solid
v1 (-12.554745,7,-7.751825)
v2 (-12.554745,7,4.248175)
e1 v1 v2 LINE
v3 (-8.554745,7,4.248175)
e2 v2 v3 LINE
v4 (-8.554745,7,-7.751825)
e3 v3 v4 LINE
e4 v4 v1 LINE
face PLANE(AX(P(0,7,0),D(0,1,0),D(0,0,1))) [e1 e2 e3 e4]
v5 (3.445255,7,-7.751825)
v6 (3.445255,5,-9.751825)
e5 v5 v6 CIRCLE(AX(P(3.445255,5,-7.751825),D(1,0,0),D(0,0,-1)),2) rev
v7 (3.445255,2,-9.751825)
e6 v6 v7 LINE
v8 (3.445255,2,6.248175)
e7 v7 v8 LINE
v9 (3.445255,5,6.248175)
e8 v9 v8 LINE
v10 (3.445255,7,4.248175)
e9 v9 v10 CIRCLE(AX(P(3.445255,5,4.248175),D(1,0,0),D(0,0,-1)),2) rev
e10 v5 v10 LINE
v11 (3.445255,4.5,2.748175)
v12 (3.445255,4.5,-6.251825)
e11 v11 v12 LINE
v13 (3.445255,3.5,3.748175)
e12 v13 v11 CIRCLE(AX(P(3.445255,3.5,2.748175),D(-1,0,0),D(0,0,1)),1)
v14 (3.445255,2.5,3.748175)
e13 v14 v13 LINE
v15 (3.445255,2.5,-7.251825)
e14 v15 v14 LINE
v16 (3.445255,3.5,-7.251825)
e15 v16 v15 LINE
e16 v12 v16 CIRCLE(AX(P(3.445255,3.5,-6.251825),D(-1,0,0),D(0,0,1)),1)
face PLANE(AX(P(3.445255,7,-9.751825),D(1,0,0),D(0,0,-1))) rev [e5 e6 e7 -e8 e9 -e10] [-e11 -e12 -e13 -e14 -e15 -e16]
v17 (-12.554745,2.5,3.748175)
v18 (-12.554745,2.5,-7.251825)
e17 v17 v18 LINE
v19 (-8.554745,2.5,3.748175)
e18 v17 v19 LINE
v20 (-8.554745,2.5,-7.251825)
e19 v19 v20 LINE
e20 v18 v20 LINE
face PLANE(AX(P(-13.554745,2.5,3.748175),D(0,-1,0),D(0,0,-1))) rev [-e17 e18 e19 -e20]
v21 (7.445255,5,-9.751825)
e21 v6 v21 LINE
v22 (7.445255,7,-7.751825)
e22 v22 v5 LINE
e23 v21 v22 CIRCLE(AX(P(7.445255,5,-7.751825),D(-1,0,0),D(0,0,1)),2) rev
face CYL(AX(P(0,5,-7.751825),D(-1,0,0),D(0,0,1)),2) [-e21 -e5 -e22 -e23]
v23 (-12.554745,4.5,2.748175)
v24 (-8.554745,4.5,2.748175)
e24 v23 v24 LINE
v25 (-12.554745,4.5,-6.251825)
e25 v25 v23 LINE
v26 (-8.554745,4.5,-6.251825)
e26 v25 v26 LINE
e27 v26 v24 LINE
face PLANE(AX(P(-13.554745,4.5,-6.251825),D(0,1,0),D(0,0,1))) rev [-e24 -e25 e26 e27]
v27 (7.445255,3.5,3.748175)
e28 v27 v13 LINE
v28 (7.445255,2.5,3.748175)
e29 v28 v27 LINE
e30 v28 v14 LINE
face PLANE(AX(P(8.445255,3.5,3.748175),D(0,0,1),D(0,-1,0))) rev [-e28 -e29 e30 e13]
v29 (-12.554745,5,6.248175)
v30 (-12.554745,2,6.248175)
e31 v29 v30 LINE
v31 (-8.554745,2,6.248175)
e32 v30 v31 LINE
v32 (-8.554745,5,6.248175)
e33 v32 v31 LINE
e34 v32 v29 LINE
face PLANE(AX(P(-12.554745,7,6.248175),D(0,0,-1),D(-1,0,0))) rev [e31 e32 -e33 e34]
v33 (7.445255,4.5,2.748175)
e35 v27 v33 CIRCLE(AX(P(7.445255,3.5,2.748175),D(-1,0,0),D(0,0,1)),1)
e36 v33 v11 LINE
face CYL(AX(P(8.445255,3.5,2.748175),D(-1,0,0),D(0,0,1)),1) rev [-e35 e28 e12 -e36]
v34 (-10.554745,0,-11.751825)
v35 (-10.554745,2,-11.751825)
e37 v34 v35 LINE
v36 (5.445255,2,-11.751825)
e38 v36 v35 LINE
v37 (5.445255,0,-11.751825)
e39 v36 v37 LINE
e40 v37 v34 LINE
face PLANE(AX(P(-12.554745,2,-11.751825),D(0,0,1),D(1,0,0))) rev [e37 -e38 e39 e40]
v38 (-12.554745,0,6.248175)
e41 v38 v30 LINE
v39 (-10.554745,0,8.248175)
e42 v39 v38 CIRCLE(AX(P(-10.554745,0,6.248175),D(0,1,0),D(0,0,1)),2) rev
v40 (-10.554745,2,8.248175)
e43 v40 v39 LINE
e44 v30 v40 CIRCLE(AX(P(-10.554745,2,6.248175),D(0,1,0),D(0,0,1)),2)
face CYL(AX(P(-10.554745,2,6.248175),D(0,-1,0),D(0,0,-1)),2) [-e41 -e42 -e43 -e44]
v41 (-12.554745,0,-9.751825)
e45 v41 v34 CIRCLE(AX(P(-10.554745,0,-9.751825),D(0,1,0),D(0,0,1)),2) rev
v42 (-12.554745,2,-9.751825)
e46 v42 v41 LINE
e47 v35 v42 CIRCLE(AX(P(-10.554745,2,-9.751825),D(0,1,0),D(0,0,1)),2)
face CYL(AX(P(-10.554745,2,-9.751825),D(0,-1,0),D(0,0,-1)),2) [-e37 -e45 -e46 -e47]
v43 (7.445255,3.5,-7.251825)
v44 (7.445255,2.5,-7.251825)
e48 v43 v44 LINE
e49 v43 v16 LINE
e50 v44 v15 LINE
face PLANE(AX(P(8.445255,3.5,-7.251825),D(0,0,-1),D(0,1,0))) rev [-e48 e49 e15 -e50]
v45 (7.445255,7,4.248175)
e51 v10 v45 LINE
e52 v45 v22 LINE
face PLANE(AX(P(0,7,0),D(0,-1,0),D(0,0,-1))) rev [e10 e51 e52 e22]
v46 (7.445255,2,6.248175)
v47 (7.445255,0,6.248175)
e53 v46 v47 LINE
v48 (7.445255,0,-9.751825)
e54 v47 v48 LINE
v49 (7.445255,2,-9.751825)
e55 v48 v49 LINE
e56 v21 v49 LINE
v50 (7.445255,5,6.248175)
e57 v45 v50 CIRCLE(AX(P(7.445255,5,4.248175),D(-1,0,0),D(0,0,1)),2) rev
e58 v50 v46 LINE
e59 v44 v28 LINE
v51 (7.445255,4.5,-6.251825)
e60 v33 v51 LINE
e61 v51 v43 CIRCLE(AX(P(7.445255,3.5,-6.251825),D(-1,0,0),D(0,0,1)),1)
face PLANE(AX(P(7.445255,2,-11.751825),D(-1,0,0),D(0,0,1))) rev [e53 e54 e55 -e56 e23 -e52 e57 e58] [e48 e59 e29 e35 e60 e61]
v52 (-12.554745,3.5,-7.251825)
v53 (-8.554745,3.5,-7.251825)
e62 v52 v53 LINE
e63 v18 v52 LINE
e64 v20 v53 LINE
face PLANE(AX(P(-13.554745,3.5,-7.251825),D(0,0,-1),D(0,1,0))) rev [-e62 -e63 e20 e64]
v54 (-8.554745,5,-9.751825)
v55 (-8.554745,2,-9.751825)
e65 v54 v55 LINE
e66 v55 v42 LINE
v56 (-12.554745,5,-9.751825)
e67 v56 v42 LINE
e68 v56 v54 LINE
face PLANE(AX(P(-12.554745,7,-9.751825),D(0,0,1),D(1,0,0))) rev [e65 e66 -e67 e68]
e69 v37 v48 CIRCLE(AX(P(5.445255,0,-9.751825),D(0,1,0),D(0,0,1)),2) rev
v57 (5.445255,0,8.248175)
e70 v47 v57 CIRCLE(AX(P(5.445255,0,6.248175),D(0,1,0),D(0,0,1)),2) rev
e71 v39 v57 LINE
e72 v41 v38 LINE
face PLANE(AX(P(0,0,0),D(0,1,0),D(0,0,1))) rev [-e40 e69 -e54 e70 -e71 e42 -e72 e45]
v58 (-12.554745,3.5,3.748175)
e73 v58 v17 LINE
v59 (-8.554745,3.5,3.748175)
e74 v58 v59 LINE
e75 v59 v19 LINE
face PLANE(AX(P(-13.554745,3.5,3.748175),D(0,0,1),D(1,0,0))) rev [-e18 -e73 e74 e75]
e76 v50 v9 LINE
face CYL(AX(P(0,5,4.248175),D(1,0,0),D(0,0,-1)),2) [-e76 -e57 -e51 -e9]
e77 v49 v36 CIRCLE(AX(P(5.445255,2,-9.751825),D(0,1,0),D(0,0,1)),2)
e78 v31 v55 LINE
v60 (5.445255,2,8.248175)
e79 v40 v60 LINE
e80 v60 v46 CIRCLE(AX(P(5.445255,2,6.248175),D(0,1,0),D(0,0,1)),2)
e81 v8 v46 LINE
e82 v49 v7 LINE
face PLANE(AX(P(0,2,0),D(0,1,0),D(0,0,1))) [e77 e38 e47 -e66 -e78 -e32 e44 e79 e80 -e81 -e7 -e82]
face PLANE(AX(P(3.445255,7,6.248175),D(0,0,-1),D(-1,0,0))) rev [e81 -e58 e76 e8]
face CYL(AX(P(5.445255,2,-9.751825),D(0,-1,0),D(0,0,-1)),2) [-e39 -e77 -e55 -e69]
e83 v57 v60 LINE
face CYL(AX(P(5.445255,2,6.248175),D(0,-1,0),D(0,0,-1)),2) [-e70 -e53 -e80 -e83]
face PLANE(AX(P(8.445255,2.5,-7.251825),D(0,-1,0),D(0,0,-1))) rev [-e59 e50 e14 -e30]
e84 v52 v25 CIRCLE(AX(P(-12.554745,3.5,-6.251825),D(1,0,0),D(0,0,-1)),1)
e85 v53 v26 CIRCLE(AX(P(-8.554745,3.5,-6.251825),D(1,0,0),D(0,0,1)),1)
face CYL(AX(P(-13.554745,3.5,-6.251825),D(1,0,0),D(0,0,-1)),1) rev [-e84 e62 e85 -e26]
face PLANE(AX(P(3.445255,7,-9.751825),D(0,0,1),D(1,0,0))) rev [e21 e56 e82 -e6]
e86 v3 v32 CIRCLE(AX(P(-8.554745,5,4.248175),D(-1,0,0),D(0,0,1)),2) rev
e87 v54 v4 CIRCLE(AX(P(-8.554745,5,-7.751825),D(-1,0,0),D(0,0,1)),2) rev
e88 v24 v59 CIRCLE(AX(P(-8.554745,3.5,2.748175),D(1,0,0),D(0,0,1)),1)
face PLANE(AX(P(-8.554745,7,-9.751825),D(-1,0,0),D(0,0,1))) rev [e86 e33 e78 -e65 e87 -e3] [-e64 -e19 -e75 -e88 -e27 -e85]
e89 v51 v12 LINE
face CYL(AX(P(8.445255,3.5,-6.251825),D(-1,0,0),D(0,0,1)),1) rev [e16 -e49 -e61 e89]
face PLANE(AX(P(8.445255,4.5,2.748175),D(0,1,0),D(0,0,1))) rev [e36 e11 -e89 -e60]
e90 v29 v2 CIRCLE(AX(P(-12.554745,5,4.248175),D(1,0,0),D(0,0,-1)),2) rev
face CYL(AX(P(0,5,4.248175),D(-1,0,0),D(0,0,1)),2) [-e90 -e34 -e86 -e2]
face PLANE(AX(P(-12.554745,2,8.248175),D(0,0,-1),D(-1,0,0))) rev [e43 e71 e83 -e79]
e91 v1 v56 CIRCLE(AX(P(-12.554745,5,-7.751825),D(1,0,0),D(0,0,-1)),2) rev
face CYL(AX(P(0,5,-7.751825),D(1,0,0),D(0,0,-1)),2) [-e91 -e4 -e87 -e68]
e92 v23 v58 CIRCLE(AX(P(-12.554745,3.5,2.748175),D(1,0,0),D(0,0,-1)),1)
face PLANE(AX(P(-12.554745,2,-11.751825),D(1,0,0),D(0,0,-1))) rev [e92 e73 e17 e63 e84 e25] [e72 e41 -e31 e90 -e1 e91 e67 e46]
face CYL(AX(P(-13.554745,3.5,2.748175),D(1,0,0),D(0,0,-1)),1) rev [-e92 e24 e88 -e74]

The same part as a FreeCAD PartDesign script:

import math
import FreeCAD as App
import Part
import Sketcher


def edges_at(feature, points):
    """Names of the edges that pass closest to the given points."""
    edges = feature.Shape.Edges
    near = lambda p: min(range(len(edges)), key=lambda i: edges[i].distToShape(Part.Vertex(*p))[0])
    return sorted({f"Edge{near(p) + 1}" for p in points})


def add_polygon(sketch, points):
    """Adds a closed chain of lines whose ends are joined by coincident constraints."""
    first, n = sketch.GeometryCount, len(points)
    for a, b in zip(points, points[1:] + points[:1]):
        sketch.addGeometry(Part.LineSegment(App.Vector(*a, 0), App.Vector(*b, 0)), False)
    for i in range(n):
        sketch.addConstraint(Sketcher.Constraint("Coincident", first + i, 2, first + (i + 1) % n, 1))

doc = App.newDocument("Part")
body = doc.addObject("PartDesign::Body", "Body")

# Sketch on XZ plane
sketch1 = doc.addObject("Sketcher::SketchObject", "Sketch")
body.addObject(sketch1)
sketch1.AttachmentSupport = (doc.XZ_Plane, [""])
sketch1.MapMode = "FlatFace"
add_polygon(sketch1, [(-12.554745, -11.751825), (-12.554745, 8.248175), (7.445255, 8.248175), (7.445255, -11.751825)])  # lines 0-3
sketch1.addConstraint([
    Sketcher.Constraint("Vertical", 0),
    Sketcher.Constraint("Horizontal", 1),
    Sketcher.Constraint("Vertical", 2),
    Sketcher.Constraint("Horizontal", 3),
    Sketcher.Constraint("Equal", 3, 0),
    Sketcher.Constraint("DistanceX", 1, 1, 1, 2, 20.0),
    Sketcher.Constraint("DistanceX", 0, 2, -1, 1, 12.554745),
    Sketcher.Constraint("DistanceY", -1, 1, 0, 2, 8.248175),
])
pad1 = doc.addObject("PartDesign::Pad", "Pad")
body.addObject(pad1)
pad1.Profile = sketch1
pad1.Length = 2
pad1.Reversed = True

# Sketch on XZ plane
sketch2 = doc.addObject("Sketcher::SketchObject", "Sketch001")
body.addObject(sketch2)
sketch2.AttachmentSupport = (doc.XZ_Plane, [""])
sketch2.MapMode = "FlatFace"
sketch2.AttachmentOffset = App.Placement(App.Vector(0, 0, -2), App.Rotation())
add_polygon(sketch2, [(-12.554745, -9.751825), (-12.554745, 6.248175), (-8.554745, 6.248175), (-8.554745, -9.751825)])  # lines 0-3
add_polygon(sketch2, [(3.445255, -9.751825), (3.445255, 6.248175), (7.445255, 6.248175), (7.445255, -9.751825)])  # lines 4-7
sketch2.addConstraint([
    Sketcher.Constraint("Vertical", 0),
    Sketcher.Constraint("Horizontal", 1),
    Sketcher.Constraint("Vertical", 2),
    Sketcher.Constraint("Horizontal", 3),
    Sketcher.Constraint("Vertical", 4),
    Sketcher.Constraint("Horizontal", 5),
    Sketcher.Constraint("Vertical", 6),
    Sketcher.Constraint("Horizontal", 7),
    Sketcher.Constraint("Horizontal", 1, 2, 4, 2),
    Sketcher.Constraint("Horizontal", 3, 2, 6, 2),
    Sketcher.Constraint("Equal", 3, 5),
    Sketcher.Constraint("DistanceX", 1, 1, 1, 2, 4.0),
    Sketcher.Constraint("DistanceY", 0, 1, 0, 2, 16.0),
    Sketcher.Constraint("DistanceX", 1, 2, 4, 2, 12.0),
    Sketcher.Constraint("DistanceX", 0, 2, -1, 1, 12.554745),
    Sketcher.Constraint("DistanceY", -1, 1, 0, 2, 6.248175),
])
pad2 = doc.addObject("PartDesign::Pad", "Pad001")
body.addObject(pad2)
pad2.Profile = sketch2
pad2.Length = 5
pad2.Reversed = True

# Sketch on YZ plane
sketch3 = doc.addObject("Sketcher::SketchObject", "Sketch002")
body.addObject(sketch3)
sketch3.AttachmentSupport = (doc.YZ_Plane, [""])
sketch3.MapMode = "FlatFace"
sketch3.AttachmentOffset = App.Placement(App.Vector(0, 0, -8.554745), App.Rotation())
sketch3.addGeometry([
    Part.LineSegment(App.Vector(4.5, -6.251825, 0), App.Vector(4.5, 2.748175, 0)),  # 0
    Part.ArcOfCircle(Part.Circle(App.Vector(3.5, 2.748175, 0), App.Vector(0, 0, 1), 1), math.radians(0), math.radians(90)),  # 1
    Part.LineSegment(App.Vector(3.5, 3.748175, 0), App.Vector(2.5, 3.748175, 0)),  # 2
    Part.LineSegment(App.Vector(2.5, 3.748175, 0), App.Vector(2.5, -7.251825, 0)),  # 3
    Part.LineSegment(App.Vector(2.5, -7.251825, 0), App.Vector(3.5, -7.251825, 0)),  # 4
    Part.ArcOfCircle(Part.Circle(App.Vector(3.5, -6.251825, 0), App.Vector(0, 0, 1), 1), math.radians(-90), math.radians(0)),  # 5
], False)
sketch3.addConstraint([
    Sketcher.Constraint("Tangent", 0, 2, 1, 1),
    Sketcher.Constraint("Tangent", 1, 2, 2, 1),
    Sketcher.Constraint("Coincident", 2, 2, 3, 1),
    Sketcher.Constraint("Coincident", 3, 2, 4, 1),
    Sketcher.Constraint("Tangent", 4, 2, 5, 1),
    Sketcher.Constraint("Tangent", 5, 2, 0, 1),
    Sketcher.Constraint("Vertical", 0),
    Sketcher.Constraint("Horizontal", 2),
    Sketcher.Constraint("Vertical", 3),
    Sketcher.Constraint("Horizontal", 4),
    Sketcher.Constraint("Equal", 1, 5),
    Sketcher.Constraint("Radius", 1, 1.0),
    Sketcher.Constraint("DistanceX", 2, 2, 2, 1, 1.0),
    Sketcher.Constraint("DistanceY", 0, 1, 0, 2, 9.0),
    Sketcher.Constraint("DistanceX", -1, 1, 1, 3, 3.5),
    Sketcher.Constraint("DistanceY", -1, 1, 1, 3, 2.748175),
])
pocket1 = doc.addObject("PartDesign::Pocket", "Pocket")
body.addObject(pocket1)
pocket1.Profile = sketch3
pocket1.Length = 5

# Sketch on YZ plane
sketch4 = doc.addObject("Sketcher::SketchObject", "Sketch003")
body.addObject(sketch4)
sketch4.AttachmentSupport = (doc.YZ_Plane, [""])
sketch4.MapMode = "FlatFace"
sketch4.AttachmentOffset = App.Placement(App.Vector(0, 0, 8.445255), App.Rotation())
sketch4.addGeometry([
    Part.LineSegment(App.Vector(4.5, 2.748175, 0), App.Vector(4.5, -6.251825, 0)),  # 0
    Part.ArcOfCircle(Part.Circle(App.Vector(3.5, -6.251825, 0), App.Vector(0, 0, 1), 1), math.radians(-90), math.radians(0)),  # 1
    Part.LineSegment(App.Vector(3.5, -7.251825, 0), App.Vector(2.5, -7.251825, 0)),  # 2
    Part.LineSegment(App.Vector(2.5, -7.251825, 0), App.Vector(2.5, 3.748175, 0)),  # 3
    Part.LineSegment(App.Vector(2.5, 3.748175, 0), App.Vector(3.5, 3.748175, 0)),  # 4
    Part.ArcOfCircle(Part.Circle(App.Vector(3.5, 2.748175, 0), App.Vector(0, 0, 1), 1), math.radians(0), math.radians(90)),  # 5
], False)
sketch4.addConstraint([
    Sketcher.Constraint("Tangent", 0, 2, 1, 2),
    Sketcher.Constraint("Tangent", 1, 1, 2, 1),
    Sketcher.Constraint("Coincident", 2, 2, 3, 1),
    Sketcher.Constraint("Coincident", 3, 2, 4, 1),
    Sketcher.Constraint("Tangent", 4, 2, 5, 2),
    Sketcher.Constraint("Tangent", 5, 1, 0, 1),
    Sketcher.Constraint("Vertical", 0),
    Sketcher.Constraint("Horizontal", 2),
    Sketcher.Constraint("Vertical", 3),
    Sketcher.Constraint("Horizontal", 4),
    Sketcher.Constraint("Equal", 1, 5),
    Sketcher.Constraint("Radius", 1, 1.0),
    Sketcher.Constraint("DistanceX", 2, 2, 2, 1, 1.0),
    Sketcher.Constraint("DistanceY", 0, 2, 0, 1, 9.0),
    Sketcher.Constraint("DistanceX", -1, 1, 1, 3, 3.5),
    Sketcher.Constraint("DistanceY", 1, 3, -1, 1, 6.251825),
])
pocket2 = doc.addObject("PartDesign::Pocket", "Pocket001")
body.addObject(pocket2)
pocket2.Profile = sketch4
pocket2.Length = 5
doc.recompute()

fillet = doc.addObject("PartDesign::Fillet", "Fillet")
body.addObject(fillet)
fillet.Base = (pocket2, edges_at(pocket2, [
    (7.445, 1, -11.752),
    (-12.555, 1, -11.752),
    (7.445, 1, 8.248),
    (-12.555, 1, 8.248),
]))
fillet.Radius = 2
doc.recompute()

fillet2 = doc.addObject("PartDesign::Fillet", "Fillet001")
body.addObject(fillet2)
fillet2.Base = (fillet, edges_at(fillet, [
    (5.445, 7, -9.752),
    (5.445, 7, 6.248),
    (-10.555, 7, -9.752),
    (-10.555, 7, 6.248),
]))
fillet2.Radius = 2

doc.recompute()
